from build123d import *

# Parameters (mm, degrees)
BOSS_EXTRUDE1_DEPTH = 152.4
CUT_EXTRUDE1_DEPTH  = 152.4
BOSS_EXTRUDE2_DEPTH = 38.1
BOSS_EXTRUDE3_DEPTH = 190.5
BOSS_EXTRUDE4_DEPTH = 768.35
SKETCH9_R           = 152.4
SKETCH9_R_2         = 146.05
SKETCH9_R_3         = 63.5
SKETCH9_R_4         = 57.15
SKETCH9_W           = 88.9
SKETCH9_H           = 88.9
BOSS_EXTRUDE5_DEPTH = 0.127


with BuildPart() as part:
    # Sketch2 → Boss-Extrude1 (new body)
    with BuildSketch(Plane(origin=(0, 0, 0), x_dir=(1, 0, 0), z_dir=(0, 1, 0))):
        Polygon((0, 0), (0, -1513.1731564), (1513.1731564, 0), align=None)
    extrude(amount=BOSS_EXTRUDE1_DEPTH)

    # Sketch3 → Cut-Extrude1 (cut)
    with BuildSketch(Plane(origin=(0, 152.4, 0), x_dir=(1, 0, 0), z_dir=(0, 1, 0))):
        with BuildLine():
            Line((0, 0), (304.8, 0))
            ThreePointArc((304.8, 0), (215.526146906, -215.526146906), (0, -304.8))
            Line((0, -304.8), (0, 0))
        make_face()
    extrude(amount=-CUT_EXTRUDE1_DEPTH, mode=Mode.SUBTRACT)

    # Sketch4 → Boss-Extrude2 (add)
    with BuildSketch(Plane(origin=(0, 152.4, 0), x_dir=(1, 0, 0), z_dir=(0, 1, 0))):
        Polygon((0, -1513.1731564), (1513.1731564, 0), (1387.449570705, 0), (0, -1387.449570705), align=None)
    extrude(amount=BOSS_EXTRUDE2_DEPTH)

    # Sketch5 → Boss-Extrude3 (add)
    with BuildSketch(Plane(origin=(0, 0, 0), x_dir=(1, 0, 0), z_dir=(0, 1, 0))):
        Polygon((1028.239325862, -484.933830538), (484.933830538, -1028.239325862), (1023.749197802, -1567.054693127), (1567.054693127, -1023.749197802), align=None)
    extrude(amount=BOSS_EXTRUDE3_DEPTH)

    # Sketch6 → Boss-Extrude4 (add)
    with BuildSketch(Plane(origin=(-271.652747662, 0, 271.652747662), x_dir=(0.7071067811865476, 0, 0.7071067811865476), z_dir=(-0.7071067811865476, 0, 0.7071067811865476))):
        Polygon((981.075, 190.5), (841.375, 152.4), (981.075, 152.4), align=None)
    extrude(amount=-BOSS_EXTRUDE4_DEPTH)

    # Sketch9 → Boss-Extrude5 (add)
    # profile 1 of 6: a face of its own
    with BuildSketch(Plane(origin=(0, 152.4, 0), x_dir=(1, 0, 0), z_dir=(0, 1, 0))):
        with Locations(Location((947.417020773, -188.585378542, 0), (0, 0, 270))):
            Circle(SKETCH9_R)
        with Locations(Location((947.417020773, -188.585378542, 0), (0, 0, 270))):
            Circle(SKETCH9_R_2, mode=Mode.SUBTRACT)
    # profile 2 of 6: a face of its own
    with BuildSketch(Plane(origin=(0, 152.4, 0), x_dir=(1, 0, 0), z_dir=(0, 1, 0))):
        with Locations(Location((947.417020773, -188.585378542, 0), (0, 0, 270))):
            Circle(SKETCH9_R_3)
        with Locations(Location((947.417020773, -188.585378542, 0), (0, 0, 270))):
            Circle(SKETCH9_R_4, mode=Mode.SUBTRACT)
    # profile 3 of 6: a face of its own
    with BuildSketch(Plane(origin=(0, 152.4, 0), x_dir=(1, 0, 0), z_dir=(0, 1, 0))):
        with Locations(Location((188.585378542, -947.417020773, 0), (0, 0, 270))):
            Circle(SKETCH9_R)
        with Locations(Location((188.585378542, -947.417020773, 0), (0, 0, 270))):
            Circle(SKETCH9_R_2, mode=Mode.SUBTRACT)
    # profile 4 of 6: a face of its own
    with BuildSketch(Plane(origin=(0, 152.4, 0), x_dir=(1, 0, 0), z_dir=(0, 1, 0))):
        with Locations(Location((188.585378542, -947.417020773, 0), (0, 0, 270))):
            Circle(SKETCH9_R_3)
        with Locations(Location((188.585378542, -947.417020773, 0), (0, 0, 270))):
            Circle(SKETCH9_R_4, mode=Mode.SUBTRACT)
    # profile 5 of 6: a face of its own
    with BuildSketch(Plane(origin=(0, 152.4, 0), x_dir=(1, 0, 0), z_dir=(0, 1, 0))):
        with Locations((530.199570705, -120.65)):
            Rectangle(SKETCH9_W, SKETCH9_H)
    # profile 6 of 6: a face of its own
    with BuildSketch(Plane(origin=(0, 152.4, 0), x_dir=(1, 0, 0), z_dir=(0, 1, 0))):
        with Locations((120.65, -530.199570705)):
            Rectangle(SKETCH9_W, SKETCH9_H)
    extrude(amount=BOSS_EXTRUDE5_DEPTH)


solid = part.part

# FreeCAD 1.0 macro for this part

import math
import FreeCAD as App
import Part
import Sketcher
Q = App.Units.Quantity


def add_polygon(sketch, points):
    """Adds a closed chain of lines whose ends are joined by coincident constraints."""
    first, n = sketch.GeometryCount, len(points)
    for a, b in zip(points, points[1:] + points[:1]):
        sketch.addGeometry(Part.LineSegment(App.Vector(*a, 0), App.Vector(*b, 0)), False)
    for i in range(n):
        sketch.addConstraint(Sketcher.Constraint("Coincident", first + i, 2, first + (i + 1) % n, 1))

doc = App.newDocument("Part")
body = doc.addObject("PartDesign::Body", "Body")

# Sketch on XZ plane
sketch1 = doc.addObject("Sketcher::SketchObject", "Sketch")
body.addObject(sketch1)
sketch1.AttachmentSupport = (doc.XZ_Plane, [""])
sketch1.MapMode = "FlatFace"
add_polygon(sketch1, [(0, 0), (0, 1513), (1513, 0)])  # lines 0-2
sketch1.addConstraint([
    Sketcher.Constraint("Vertical", 0),
    Sketcher.Constraint("Horizontal", 2),
    Sketcher.Constraint("Coincident", 2, 2, -1, 1),
    Sketcher.Constraint("Equal", 2, 0),
    Sketcher.Constraint("Distance", 1, Q("84.25 in")),
])
pad1 = doc.addObject("PartDesign::Pad", "Pad")
body.addObject(pad1)
pad1.Profile = sketch1
pad1.Length = Q("6 in")
pad1.Reversed = True

# Sketch on XZ plane
sketch2 = doc.addObject("Sketcher::SketchObject", "Sketch001")
body.addObject(sketch2)
sketch2.AttachmentSupport = (doc.XZ_Plane, [""])
sketch2.MapMode = "FlatFace"
sketch2.AttachmentOffset = App.Placement(App.Vector(0, 0, -6 * 25.4), App.Rotation())
sketch2.addGeometry([
    Part.LineSegment(App.Vector(305, 0, 0), App.Vector(0, 0, 0)),
    Part.LineSegment(App.Vector(0, 0, 0), App.Vector(0, 305, 0)),
    Part.ArcOfCircle(Part.Circle(App.Vector(0, 0, 0), App.Vector(0, 0, 1), 305), math.radians(0), math.radians(90)),
], False)
sketch2.addConstraint([
    Sketcher.Constraint("Coincident", 0, 2, 1, 1),
    Sketcher.Constraint("Coincident", 1, 2, 2, 2),
    Sketcher.Constraint("Coincident", 2, 1, 0, 1),
    Sketcher.Constraint("Horizontal", 0),
    Sketcher.Constraint("Vertical", 1),
    Sketcher.Constraint("Coincident", 2, 3, -1, 1),
    Sketcher.Constraint("Coincident", 0, 2, -1, 1),
    Sketcher.Constraint("Radius", 2, Q("12 in")),
])
pocket1 = doc.addObject("PartDesign::Pocket", "Pocket")
body.addObject(pocket1)
pocket1.Profile = sketch2
pocket1.Length = Q("6 in")
pocket1.Reversed = True

# Sketch on XZ plane
sketch3 = doc.addObject("Sketcher::SketchObject", "Sketch002")
body.addObject(sketch3)
sketch3.AttachmentSupport = (doc.XZ_Plane, [""])
sketch3.MapMode = "FlatFace"
sketch3.AttachmentOffset = App.Placement(App.Vector(0, 0, -6 * 25.4), App.Rotation())
add_polygon(sketch3, [(0, 1513), (1513, 0), (1387, 0), (0, 1387)])  # lines 0-3
sketch3.addConstraint([
    Sketcher.Constraint("Horizontal", 1),
    Sketcher.Constraint("Vertical", 3),
    Sketcher.Constraint("PointOnObject", 0, 2, -1),
    Sketcher.Constraint("PointOnObject", 2, 2, -2),
    Sketcher.Constraint("Parallel", 0, 2),
    Sketcher.Constraint("Equal", 1, 3),
    Sketcher.Constraint("Distance", 0, Q("84.25 in")),
    Sketcher.Constraint("Distance", 2, Q("77.25 in")),
])
pad2 = doc.addObject("PartDesign::Pad", "Pad001")
body.addObject(pad2)
pad2.Profile = sketch3
pad2.Length = Q("1.5 in")
pad2.Reversed = True

# Sketch on XZ plane
sketch4 = doc.addObject("Sketcher::SketchObject", "Sketch003")
body.addObject(sketch4)
sketch4.AttachmentSupport = (doc.XZ_Plane, [""])
sketch4.MapMode = "FlatFace"
add_polygon(sketch4, [(1028, 485), (485, 1028), (1024, 1567), (1567, 1024)])  # lines 0-3
sketch4.addConstraint([
    Sketcher.Constraint("Perpendicular", 0, 1),
    Sketcher.Constraint("Perpendicular", 1, 2),
    Sketcher.Constraint("Perpendicular", 2, 3),
    Sketcher.Constraint("Distance", 1, Q("30 in")),
    Sketcher.Constraint("Angle", 0, Q("135 deg")),
    Sketcher.Constraint("Distance", 0, Q("30.25 in")),
    Sketcher.Constraint("DistanceX", -1, 1, 0, 2, Q("484.933831 mm")),
    Sketcher.Constraint("DistanceY", -1, 1, 3, 2, Q("484.933831 mm")),
])
pad3 = doc.addObject("PartDesign::Pad", "Pad002")
body.addObject(pad3)
pad3.Profile = sketch4
pad3.Length = Q("7.5 in")
pad3.Reversed = True

# Sketch on an angled plane
sketch5 = doc.addObject("Sketcher::SketchObject", "Sketch004")
body.addObject(sketch5)
sketch5.Placement = App.Placement(App.Vector(-271.652748, 0, 271.652748), App.Rotation(App.Vector(0.707106781, 0, 0.707106781), App.Vector(0, 0.999999999, 0), App.Vector(-0.707106781, 0, 0.707106781), "ZXY"))
add_polygon(sketch5, [(981, 190), (841, 152), (981, 152)])  # lines 0-2
sketch5.addConstraint([
    Sketcher.Constraint("Horizontal", 1),
    Sketcher.Constraint("Vertical", 2),
    Sketcher.Constraint("DistanceX", 1, 1, 1, 2, Q("5.5 in")),
    Sketcher.Constraint("DistanceY", 2, 1, 2, 2, Q("1.5 in")),
    Sketcher.Constraint("DistanceY", -1, 1, 0, 2, Q("6 in")),
    Sketcher.Constraint("DistanceX", -1, 1, 0, 2, Q("33.125 in")),
])
pad4 = doc.addObject("PartDesign::Pad", "Pad003")
body.addObject(pad4)
pad4.Profile = sketch5
pad4.Length = Q("30.25 in")
pad4.Reversed = True

# Sketch on XZ plane
sketch6 = doc.addObject("Sketcher::SketchObject", "Sketch005")
body.addObject(sketch6)
sketch6.AttachmentSupport = (doc.XZ_Plane, [""])
sketch6.MapMode = "FlatFace"
sketch6.AttachmentOffset = App.Placement(App.Vector(0, 0, -6 * 25.4), App.Rotation())
sketch6.addGeometry(Part.Circle(App.Vector(947, 189, 0), App.Vector(0, 0, 1), 152), False)  # 0
sketch6.addGeometry(Part.Circle(App.Vector(947, 189, 0), App.Vector(0, 0, 1), 146), False)  # 1
sketch6.addGeometry(Part.Circle(App.Vector(947, 189, 0), App.Vector(0, 0, 1), 64), False)  # 2
sketch6.addGeometry(Part.Circle(App.Vector(947, 189, 0), App.Vector(0, 0, 1), 57), False)  # 3
sketch6.addGeometry(Part.Circle(App.Vector(189, 947, 0), App.Vector(0, 0, 1), 152), False)  # 4
sketch6.addGeometry(Part.Circle(App.Vector(189, 947, 0), App.Vector(0, 0, 1), 146), False)  # 5
sketch6.addGeometry(Part.Circle(App.Vector(189, 947, 0), App.Vector(0, 0, 1), 64), False)  # 6
sketch6.addGeometry(Part.Circle(App.Vector(189, 947, 0), App.Vector(0, 0, 1), 57), False)  # 7
add_polygon(sketch6, [(486, 76), (486, 165), (575, 165), (575, 76)])  # lines 8-11
add_polygon(sketch6, [(76, 486), (76, 575), (165, 575), (165, 486)])  # lines 12-15
sketch6.addConstraint([
    Sketcher.Constraint("Vertical", 8),
    Sketcher.Constraint("Horizontal", 9),
    Sketcher.Constraint("Vertical", 10),
    Sketcher.Constraint("Horizontal", 11),
    Sketcher.Constraint("Vertical", 12),
    Sketcher.Constraint("Horizontal", 13),
    Sketcher.Constraint("Vertical", 14),
    Sketcher.Constraint("Horizontal", 15),
    Sketcher.Constraint("Coincident", 1, 3, 0, 3),
    Sketcher.Constraint("Coincident", 2, 3, 0, 3),
    Sketcher.Constraint("Coincident", 3, 3, 0, 3),
    Sketcher.Constraint("Coincident", 5, 3, 4, 3),
    Sketcher.Constraint("Coincident", 6, 3, 4, 3),
    Sketcher.Constraint("Coincident", 7, 3, 4, 3),
    Sketcher.Constraint("Equal", 0, 4),
    Sketcher.Constraint("Equal", 1, 5),
    Sketcher.Constraint("Equal", 2, 6),
    Sketcher.Constraint("Equal", 3, 7),
    Sketcher.Constraint("Equal", 11, 13),
    Sketcher.Constraint("Equal", 15, 8),
    Sketcher.Constraint("Equal", 10, 12),
    Sketcher.Constraint("Diameter", 0, Q("12 in")),
    Sketcher.Constraint("Diameter", 2, Q("5 in")),
    Sketcher.Constraint("Diameter", 1, Q("11.5 in")),
    Sketcher.Constraint("Diameter", 3, Q("4.5 in")),
    Sketcher.Constraint("DistanceX", 9, 1, 9, 2, Q("3.5 in")),
    Sketcher.Constraint("DistanceY", -1, 1, 10, 2, Q("3 in")),
    Sketcher.Constraint("DistanceX", -1, 1, 12, 2, Q("3 in")),
    Sketcher.Constraint("DistanceX", -1, 1, 0, 3, Q("947.417021 mm")),
    Sketcher.Constraint("DistanceY", -1, 1, 0, 3, Q("188.585379 mm")),
    Sketcher.Constraint("DistanceX", -1, 1, 4, 3, Q("188.585379 mm")),
    Sketcher.Constraint("DistanceY", -1, 1, 4, 3, Q("947.417021 mm")),
    Sketcher.Constraint("DistanceX", -1, 1, 8, 2, Q("485.749571 mm")),
    Sketcher.Constraint("DistanceY", -1, 1, 12, 2, Q("574.649571 mm")),
])
pad5 = doc.addObject("PartDesign::Pad", "Pad004")
body.addObject(pad5)
pad5.Profile = sketch6
pad5.Length = Q("0.005 in")
pad5.Reversed = True

doc.recompute()
